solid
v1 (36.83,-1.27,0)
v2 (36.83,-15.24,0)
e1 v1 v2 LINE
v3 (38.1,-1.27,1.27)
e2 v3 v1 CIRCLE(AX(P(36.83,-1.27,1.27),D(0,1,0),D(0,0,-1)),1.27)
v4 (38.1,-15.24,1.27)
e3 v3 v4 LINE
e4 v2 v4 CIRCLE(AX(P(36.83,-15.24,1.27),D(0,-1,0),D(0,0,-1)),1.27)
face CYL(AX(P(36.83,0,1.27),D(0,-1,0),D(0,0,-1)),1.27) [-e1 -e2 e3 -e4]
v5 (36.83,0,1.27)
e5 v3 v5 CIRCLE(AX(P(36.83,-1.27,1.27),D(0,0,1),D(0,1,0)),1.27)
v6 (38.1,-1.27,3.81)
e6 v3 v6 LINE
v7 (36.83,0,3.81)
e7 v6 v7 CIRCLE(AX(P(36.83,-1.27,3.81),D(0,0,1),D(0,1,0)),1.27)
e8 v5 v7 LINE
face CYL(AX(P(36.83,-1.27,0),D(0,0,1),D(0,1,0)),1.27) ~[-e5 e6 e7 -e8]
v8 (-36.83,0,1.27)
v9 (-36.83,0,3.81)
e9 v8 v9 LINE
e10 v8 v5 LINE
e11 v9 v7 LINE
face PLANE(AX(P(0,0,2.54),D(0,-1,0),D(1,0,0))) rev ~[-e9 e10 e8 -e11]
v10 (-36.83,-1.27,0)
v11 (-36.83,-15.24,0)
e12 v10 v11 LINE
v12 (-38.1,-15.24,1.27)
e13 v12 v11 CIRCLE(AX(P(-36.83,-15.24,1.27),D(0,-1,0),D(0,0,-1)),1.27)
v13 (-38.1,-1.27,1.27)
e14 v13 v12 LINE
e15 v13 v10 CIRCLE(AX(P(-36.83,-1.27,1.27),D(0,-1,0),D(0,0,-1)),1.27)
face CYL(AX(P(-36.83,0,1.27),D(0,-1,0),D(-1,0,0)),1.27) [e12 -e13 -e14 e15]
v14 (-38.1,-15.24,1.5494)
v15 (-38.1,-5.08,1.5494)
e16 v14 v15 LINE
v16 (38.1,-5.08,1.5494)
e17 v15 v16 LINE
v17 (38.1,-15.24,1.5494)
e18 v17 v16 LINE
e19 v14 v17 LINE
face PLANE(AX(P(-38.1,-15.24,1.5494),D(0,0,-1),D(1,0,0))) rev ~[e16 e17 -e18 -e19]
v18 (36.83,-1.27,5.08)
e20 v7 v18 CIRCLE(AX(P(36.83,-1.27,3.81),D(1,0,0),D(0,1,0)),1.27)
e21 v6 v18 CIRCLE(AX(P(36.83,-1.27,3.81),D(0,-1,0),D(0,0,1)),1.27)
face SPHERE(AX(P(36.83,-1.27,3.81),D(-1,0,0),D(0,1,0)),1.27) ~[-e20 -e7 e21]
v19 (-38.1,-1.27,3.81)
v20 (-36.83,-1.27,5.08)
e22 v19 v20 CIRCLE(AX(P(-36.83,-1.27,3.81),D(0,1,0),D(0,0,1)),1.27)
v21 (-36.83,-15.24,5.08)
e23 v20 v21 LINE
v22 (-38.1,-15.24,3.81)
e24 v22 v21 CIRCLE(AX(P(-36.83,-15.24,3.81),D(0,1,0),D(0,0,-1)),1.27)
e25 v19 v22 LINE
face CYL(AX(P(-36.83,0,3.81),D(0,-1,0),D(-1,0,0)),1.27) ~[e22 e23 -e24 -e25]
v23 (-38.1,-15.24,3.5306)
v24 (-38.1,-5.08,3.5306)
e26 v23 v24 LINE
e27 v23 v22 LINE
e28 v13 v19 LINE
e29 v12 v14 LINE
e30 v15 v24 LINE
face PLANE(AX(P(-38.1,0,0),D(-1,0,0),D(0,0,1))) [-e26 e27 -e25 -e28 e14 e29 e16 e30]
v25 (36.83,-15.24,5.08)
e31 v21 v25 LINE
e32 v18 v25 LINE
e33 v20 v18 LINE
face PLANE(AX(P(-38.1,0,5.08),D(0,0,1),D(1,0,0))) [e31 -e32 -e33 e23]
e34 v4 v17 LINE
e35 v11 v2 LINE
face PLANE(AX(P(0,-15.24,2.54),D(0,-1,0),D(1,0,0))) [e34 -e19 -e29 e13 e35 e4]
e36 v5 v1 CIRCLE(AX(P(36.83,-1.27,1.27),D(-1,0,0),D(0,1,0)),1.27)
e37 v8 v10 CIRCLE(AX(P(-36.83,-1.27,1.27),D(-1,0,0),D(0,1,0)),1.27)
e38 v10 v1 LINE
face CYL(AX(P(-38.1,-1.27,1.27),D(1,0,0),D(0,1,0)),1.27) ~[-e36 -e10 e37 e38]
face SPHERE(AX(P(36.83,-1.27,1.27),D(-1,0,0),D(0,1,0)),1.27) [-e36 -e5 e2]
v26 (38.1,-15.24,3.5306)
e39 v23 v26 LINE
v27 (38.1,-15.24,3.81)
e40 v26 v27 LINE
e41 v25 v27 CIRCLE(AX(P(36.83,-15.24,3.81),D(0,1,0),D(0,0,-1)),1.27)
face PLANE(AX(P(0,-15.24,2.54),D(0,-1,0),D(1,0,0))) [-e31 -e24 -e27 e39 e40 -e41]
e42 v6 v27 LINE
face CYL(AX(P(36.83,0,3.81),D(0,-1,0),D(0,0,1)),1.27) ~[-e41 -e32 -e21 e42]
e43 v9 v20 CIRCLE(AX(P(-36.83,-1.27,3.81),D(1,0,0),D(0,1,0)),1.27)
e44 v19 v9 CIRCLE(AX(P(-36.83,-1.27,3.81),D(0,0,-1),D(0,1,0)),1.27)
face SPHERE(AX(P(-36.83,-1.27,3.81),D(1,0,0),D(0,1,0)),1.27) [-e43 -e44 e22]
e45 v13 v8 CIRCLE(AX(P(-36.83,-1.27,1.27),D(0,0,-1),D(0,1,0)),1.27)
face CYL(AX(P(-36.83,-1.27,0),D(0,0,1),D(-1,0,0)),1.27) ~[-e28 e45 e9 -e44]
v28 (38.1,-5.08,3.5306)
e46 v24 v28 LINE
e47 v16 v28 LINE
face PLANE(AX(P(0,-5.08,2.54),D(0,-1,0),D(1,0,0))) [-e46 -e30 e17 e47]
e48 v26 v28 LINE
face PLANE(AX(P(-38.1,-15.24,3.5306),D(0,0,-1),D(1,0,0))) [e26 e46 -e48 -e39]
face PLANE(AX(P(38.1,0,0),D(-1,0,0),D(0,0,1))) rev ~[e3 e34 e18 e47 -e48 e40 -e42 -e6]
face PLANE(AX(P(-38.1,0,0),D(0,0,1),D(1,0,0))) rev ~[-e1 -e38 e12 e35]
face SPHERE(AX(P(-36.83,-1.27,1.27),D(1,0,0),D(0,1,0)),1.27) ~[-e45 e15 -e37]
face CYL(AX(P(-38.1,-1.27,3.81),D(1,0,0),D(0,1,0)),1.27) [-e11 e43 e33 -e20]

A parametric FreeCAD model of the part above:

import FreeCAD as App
import Part
import Sketcher
from FreeCAD import Vector
Q = App.Units.Quantity


def edges_at(feature, points):
    """Names of the edges that pass closest to the given points."""
    edges = feature.Shape.Edges
    near = lambda p: min(range(len(edges)), key=lambda i: edges[i].distToShape(Part.Vertex(*p))[0])
    return sorted({f"Edge{near(p) + 1}" for p in points})


def add_polygon(sketch, points):
    """Adds a closed chain of lines whose ends are joined by coincident constraints."""
    first, n = sketch.GeometryCount, len(points)
    for a, b in zip(points, points[1:] + points[:1]):
        sketch.addGeometry(Part.LineSegment(App.Vector(*a, 0), App.Vector(*b, 0)), False)
    for i in range(n):
        sketch.addConstraint(Sketcher.Constraint("Coincident", first + i, 2, first + (i + 1) % n, 1))

doc = App.newDocument("Part")
params = doc.addObject("Spreadsheet::Sheet", "Params")
for row, (alias, value) in enumerate([
    ("sketch1_width", "3 in"),
    ("sketch1_height", "0.2 in"),
    ("pad1_length", "0.6 in"),
    ("sketch2_width", "3 in"),
    ("sketch2_height", "0.078 in"),
    ("pocket1_length", "0.4 in"),
    ("fillet_radius", "0.05 in"),
], start=1):
    params.set(f"A{row}", alias)
    params.set(f"B{row}", "=" + value)
    params.setAlias(f"B{row}", alias)

body = doc.addObject("PartDesign::Body", "Body")

# Sketch on XZ plane
sketch1 = doc.addObject("Sketcher::SketchObject", "Sketch")
body.addObject(sketch1)
sketch1.AttachmentSupport = (doc.XZ_Plane, [""])
sketch1.MapMode = "FlatFace"
add_polygon(sketch1, [(-38, 5), (-38, 0), (38, 0), (38, 5)])  # lines 0-3
sketch1.addConstraint(Sketcher.Constraint("Vertical", 0))
sketch1.addConstraint(Sketcher.Constraint("Horizontal", 1))
sketch1.addConstraint(Sketcher.Constraint("Vertical", 2))
sketch1.addConstraint(Sketcher.Constraint("Horizontal", 3))
sketch1.addConstraint(Sketcher.Constraint("Symmetric", 0, 2, 1, 2, -1, 1))
sketch1.addConstraint(Sketcher.Constraint("DistanceX", 1, 1, 1, 2, Q("3 in")))
sketch1.addConstraint(Sketcher.Constraint("DistanceY", 0, 2, 0, 1, Q("0.2 in")))
sketch1.setExpression("Constraints[9]", "Params.sketch1_width")
sketch1.setExpression("Constraints[10]", "Params.sketch1_height")
pad1 = doc.addObject("PartDesign::Pad", "Pad")
body.addObject(pad1)
pad1.Profile = sketch1
pad1.setExpression("Length", "Params.pad1_length")

# Sketch on XZ plane
sketch2 = doc.addObject("Sketcher::SketchObject", "Sketch001")
body.addObject(sketch2)
sketch2.AttachmentSupport = (doc.XZ_Plane, [""])
sketch2.MapMode = "FlatFace"
sketch2.AttachmentOffset = App.Placement(Vector(0, 0, 0.6 * 25.4), App.Rotation())
add_polygon(sketch2, [(-38.1, 3.5), (-38.1, 1.5), (38.1, 1.5), (38.1, 3.5)])  # lines 0-3
sketch2.addConstraint(Sketcher.Constraint("Vertical", 0))
sketch2.addConstraint(Sketcher.Constraint("Horizontal", 1))
sketch2.addConstraint(Sketcher.Constraint("Vertical", 2))
sketch2.addConstraint(Sketcher.Constraint("Horizontal", 3))
sketch2.addConstraint(Sketcher.Constraint("DistanceX", 1, 1, 1, 2, Q("3 in")))
sketch2.addConstraint(Sketcher.Constraint("DistanceX", 0, 2, -1, 1, Q("1.5 in")))
sketch2.addConstraint(Sketcher.Constraint("DistanceY", 0, 2, 0, 1, Q("0.078 in")))
sketch2.addConstraint(Sketcher.Constraint("DistanceY", -1, 1, 0, 2, Q("0.061 in")))
sketch2.setExpression("Constraints[8]", "Params.sketch2_width")
sketch2.setExpression("Constraints[10]", "Params.sketch2_height")
pocket1 = doc.addObject("PartDesign::Pocket", "Pocket")
body.addObject(pocket1)
pocket1.Profile = sketch2
pocket1.setExpression("Length", "Params.pocket1_length")
doc.recompute()

fillet = doc.addObject("PartDesign::Fillet", "Fillet")
body.addObject(fillet)
fillet.Base = (pocket1, edges_at(pocket1, [
    (0, 0, 5.08),
    (0, 0, 0),
    (-38.1, 0, 2.54),
    (38.1, 0, 2.54),
    (38.1, -7.62, 5.08),
    (38.1, -7.62, 0),
    (-38.1, -7.62, 5.08),
    (-38.1, -7.62, 0),
]))
fillet.setExpression("Radius", "Params.fillet_radius")

doc.recompute()
